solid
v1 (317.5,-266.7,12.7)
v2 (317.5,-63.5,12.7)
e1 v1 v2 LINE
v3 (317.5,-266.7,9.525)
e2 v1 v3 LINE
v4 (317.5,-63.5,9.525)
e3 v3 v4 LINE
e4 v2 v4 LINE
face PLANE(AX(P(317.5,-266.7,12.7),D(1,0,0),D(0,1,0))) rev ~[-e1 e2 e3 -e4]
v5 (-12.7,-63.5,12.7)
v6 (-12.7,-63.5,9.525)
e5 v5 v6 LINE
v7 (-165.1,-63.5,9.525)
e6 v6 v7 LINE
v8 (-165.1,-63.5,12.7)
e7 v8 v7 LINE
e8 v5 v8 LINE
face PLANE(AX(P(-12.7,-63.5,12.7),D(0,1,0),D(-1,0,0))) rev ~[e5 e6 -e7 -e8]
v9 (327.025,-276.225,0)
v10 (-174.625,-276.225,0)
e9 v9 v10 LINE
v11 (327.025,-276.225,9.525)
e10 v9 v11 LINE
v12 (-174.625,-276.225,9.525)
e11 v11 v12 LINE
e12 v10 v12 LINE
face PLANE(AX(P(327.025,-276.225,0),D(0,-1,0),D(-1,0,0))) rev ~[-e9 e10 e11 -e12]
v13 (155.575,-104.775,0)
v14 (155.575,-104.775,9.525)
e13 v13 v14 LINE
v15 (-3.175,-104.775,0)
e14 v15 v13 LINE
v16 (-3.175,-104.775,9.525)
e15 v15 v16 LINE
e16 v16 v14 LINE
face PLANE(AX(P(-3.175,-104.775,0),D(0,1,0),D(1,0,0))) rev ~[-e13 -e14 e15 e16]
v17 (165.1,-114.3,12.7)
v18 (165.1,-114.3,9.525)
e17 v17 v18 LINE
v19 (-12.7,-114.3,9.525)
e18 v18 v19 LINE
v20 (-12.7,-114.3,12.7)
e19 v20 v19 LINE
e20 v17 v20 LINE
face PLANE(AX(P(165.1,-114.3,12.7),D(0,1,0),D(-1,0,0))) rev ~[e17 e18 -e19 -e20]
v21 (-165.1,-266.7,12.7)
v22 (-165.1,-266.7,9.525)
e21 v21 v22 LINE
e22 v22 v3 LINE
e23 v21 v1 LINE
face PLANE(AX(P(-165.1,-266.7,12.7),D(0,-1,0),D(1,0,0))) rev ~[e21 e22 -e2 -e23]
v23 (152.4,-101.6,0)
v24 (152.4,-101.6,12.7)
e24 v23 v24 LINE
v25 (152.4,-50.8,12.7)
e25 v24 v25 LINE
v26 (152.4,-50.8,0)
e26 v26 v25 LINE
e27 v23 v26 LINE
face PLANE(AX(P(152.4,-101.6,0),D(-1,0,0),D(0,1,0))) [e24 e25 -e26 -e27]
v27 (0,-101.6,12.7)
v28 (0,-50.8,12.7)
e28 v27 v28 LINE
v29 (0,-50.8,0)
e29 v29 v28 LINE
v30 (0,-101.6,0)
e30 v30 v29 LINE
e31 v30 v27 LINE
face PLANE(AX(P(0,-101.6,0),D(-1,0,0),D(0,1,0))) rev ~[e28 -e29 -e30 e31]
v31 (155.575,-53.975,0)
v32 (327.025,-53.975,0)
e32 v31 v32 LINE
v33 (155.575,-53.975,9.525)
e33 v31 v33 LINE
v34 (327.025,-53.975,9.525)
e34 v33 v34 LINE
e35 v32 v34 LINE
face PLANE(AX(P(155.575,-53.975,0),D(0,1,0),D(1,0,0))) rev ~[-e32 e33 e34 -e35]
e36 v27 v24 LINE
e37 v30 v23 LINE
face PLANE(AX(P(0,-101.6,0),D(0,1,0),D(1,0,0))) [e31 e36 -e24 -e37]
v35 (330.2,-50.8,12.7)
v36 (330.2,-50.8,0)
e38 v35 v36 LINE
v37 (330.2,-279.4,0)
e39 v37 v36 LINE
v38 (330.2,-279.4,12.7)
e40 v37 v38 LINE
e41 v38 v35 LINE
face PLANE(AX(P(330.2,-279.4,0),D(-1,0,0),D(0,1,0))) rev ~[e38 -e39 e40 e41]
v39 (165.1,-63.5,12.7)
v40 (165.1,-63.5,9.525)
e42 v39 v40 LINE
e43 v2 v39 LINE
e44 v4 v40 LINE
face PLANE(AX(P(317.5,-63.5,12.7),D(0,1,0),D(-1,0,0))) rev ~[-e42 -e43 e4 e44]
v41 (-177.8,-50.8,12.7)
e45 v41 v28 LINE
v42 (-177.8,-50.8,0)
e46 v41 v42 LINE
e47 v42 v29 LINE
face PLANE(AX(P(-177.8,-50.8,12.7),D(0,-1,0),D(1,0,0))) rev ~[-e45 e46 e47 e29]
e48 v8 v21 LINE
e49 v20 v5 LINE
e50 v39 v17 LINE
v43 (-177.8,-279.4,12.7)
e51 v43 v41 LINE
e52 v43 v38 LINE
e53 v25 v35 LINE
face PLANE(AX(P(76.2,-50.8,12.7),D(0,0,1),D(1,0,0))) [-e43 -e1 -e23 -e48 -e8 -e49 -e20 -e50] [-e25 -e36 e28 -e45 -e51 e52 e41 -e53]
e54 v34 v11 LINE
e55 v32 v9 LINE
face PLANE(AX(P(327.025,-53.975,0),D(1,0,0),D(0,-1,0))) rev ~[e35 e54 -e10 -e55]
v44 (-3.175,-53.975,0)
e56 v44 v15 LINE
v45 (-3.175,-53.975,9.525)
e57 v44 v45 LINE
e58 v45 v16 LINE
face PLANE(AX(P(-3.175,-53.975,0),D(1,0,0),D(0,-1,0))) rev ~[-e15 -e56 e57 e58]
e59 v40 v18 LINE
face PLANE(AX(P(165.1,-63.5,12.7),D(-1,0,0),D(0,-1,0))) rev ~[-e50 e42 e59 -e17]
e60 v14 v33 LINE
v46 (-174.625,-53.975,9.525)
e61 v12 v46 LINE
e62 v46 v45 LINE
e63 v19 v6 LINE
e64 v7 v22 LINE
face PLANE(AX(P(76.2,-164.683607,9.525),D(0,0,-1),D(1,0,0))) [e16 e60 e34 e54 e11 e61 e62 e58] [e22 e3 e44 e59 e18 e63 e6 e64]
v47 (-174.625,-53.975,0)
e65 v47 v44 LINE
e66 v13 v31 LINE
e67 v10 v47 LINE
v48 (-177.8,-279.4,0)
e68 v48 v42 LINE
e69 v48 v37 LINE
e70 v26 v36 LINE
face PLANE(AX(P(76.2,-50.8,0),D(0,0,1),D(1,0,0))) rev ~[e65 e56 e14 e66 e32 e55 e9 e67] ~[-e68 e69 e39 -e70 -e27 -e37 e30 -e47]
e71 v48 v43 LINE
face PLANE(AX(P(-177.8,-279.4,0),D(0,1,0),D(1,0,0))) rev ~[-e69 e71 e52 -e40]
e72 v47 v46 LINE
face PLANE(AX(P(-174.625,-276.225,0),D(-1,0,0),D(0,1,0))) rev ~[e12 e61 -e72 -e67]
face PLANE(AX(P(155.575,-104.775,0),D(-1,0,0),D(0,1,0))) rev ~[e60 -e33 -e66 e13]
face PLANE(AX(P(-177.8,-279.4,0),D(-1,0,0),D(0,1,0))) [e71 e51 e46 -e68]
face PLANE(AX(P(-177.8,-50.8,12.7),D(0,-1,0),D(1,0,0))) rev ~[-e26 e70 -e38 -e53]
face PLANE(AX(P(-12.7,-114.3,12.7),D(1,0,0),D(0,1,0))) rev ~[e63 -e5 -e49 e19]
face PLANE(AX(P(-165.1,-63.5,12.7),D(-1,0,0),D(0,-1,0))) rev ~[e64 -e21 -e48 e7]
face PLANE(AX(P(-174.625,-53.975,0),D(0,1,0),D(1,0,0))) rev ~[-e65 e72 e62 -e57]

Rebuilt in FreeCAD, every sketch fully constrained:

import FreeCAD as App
import Part
import Sketcher
from FreeCAD import Vector
Q = App.Units.Quantity


def add_polygon(sketch, points):
    """Adds a closed chain of lines whose ends are joined by coincident constraints."""
    first, n = sketch.GeometryCount, len(points)
    for a, b in zip(points, points[1:] + points[:1]):
        sketch.addGeometry(Part.LineSegment(App.Vector(*a, 0), App.Vector(*b, 0)), False)
    for i in range(n):
        sketch.addConstraint(Sketcher.Constraint("Coincident", first + i, 2, first + (i + 1) % n, 1))

doc = App.newDocument("Part")
body = doc.addObject("PartDesign::Body", "Body")

# Sketch on XY plane
sketch1 = body.newObject("Sketcher::SketchObject", "Sketch")
sketch1.AttachmentSupport = (doc.getObject("XY_Plane"), [""])
sketch1.MapMode = "FlatFace"
add_polygon(sketch1, [(-177.8, 177.8), (-177.8, -279.4), (330.2, -279.4), (330.2, 177.8)])  # lines 0-3
add_polygon(sketch1, [(152.4, -101.6), (0, -101.6), (0, 0), (152.4, 0)])  # lines 4-7
sketch1.addConstraint(Sketcher.Constraint("Vertical", 0))
sketch1.addConstraint(Sketcher.Constraint("Horizontal", 1))
sketch1.addConstraint(Sketcher.Constraint("Vertical", 2))
sketch1.addConstraint(Sketcher.Constraint("Horizontal", 3))
sketch1.addConstraint(Sketcher.Constraint("Horizontal", 4))
sketch1.addConstraint(Sketcher.Constraint("Vertical", 5))
sketch1.addConstraint(Sketcher.Constraint("Horizontal", 6))
sketch1.addConstraint(Sketcher.Constraint("Vertical", 7))
sketch1.addConstraint(Sketcher.Constraint("Coincident", 5, 2, -1, 1))
sketch1.addConstraint(Sketcher.Constraint("DistanceX", 1, 1, 1, 2, Q("20 in")))
sketch1.addConstraint(Sketcher.Constraint("DistanceX", 4, 2, 4, 1, Q("6 in")))
sketch1.addConstraint(Sketcher.Constraint("DistanceY", 0, 2, 0, 1, Q("18 in")))
sketch1.addConstraint(Sketcher.Constraint("DistanceY", 5, 1, 5, 2, Q("4 in")))
sketch1.addConstraint(Sketcher.Constraint("DistanceX", 0, 2, -1, 1, Q("7 in")))
sketch1.addConstraint(Sketcher.Constraint("DistanceY", 0, 2, -1, 1, Q("11 in")))
pad1 = body.newObject("PartDesign::Pad", "Pad")
pad1.Profile = sketch1
pad1.Length = Q("0.5 in")

# Sketch on XY plane
sketch2 = body.newObject("Sketcher::SketchObject", "Sketch001")
sketch2.AttachmentSupport = (doc.getObject("XY_Plane"), [""])
sketch2.MapMode = "FlatFace"
sketch2.AttachmentOffset = App.Placement(Vector(0, 0, 0.5 * 25.4), App.Rotation())
add_polygon(sketch2, [(-177.8, 177.8), (-177.8, -50.8), (330.2, -50.8), (330.2, 177.8)])  # lines 0-3
sketch2.addConstraint(Sketcher.Constraint("Vertical", 0))
sketch2.addConstraint(Sketcher.Constraint("Horizontal", 1))
sketch2.addConstraint(Sketcher.Constraint("Vertical", 2))
sketch2.addConstraint(Sketcher.Constraint("Horizontal", 3))
sketch2.addConstraint(Sketcher.Constraint("DistanceX", 1, 1, 1, 2, Q("20 in")))
sketch2.addConstraint(Sketcher.Constraint("DistanceY", 0, 2, 0, 1, Q("9 in")))
sketch2.addConstraint(Sketcher.Constraint("DistanceX", 0, 2, -1, 1, Q("7 in")))
sketch2.addConstraint(Sketcher.Constraint("DistanceY", 0, 2, -1, 1, Q("2 in")))
pocket1 = body.newObject("PartDesign::Pocket", "Pocket")
pocket1.Profile = sketch2
pocket1.Type = "ThroughAll"

# Sketch on XY plane
sketch3 = body.newObject("Sketcher::SketchObject", "Sketch002")
sketch3.AttachmentSupport = (doc.getObject("XY_Plane"), [""])
sketch3.MapMode = "FlatFace"
sketch3.AttachmentOffset = App.Placement(Vector(0, 0, 0.5 * 25.4), App.Rotation())
add_polygon(sketch3, [(-12.7, -63.5), (-165.1, -63.5), (-165.1, -266.7), (317.5, -266.7), (317.5, -63.5), (165.1, -63.5), (165.1, -114.3), (-12.7, -114.3)])  # lines 0-7
sketch3.addConstraint(Sketcher.Constraint("Horizontal", 0))
sketch3.addConstraint(Sketcher.Constraint("Vertical", 1))
sketch3.addConstraint(Sketcher.Constraint("Horizontal", 2))
sketch3.addConstraint(Sketcher.Constraint("Vertical", 3))
sketch3.addConstraint(Sketcher.Constraint("Horizontal", 4))
sketch3.addConstraint(Sketcher.Constraint("Vertical", 5))
sketch3.addConstraint(Sketcher.Constraint("Horizontal", 6))
sketch3.addConstraint(Sketcher.Constraint("Vertical", 7))
sketch3.addConstraint(Sketcher.Constraint("Symmetric", 0, 2, 4, 2, -2))
sketch3.addConstraint(Sketcher.Constraint("Equal", 0, 4))
sketch3.addConstraint(Sketcher.Constraint("DistanceX", 0, 2, 0, 1, Q("6 in")))
sketch3.addConstraint(Sketcher.Constraint("DistanceX", 2, 1, 2, 2, Q("19 in")))
sketch3.addConstraint(Sketcher.Constraint("DistanceY", 1, 2, 1, 1, Q("8 in")))
sketch3.addConstraint(Sketcher.Constraint("DistanceY", 5, 2, 5, 1, Q("2 in")))
sketch3.addConstraint(Sketcher.Constraint("DistanceY", 0, 2, -1, 1, Q("2.5 in")))
pocket2 = body.newObject("PartDesign::Pocket", "Pocket001")
pocket2.Profile = sketch3
pocket2.Type = "ThroughAll"

# Sketch on XY plane
sketch4 = body.newObject("Sketcher::SketchObject", "Sketch003")
sketch4.AttachmentSupport = (doc.getObject("XY_Plane"), [""])
sketch4.MapMode = "FlatFace"
add_polygon(sketch4, [(-174.625, -276.225), (-174.625, -53.975), (-3.175, -53.975), (-3.175, -104.775), (155.575, -104.775), (155.575, -53.975), (327.025, -53.975), (327.025, -276.225)])  # lines 0-7
sketch4.addConstraint(Sketcher.Constraint("Vertical", 0))
sketch4.addConstraint(Sketcher.Constraint("Horizontal", 1))
sketch4.addConstraint(Sketcher.Constraint("Vertical", 2))
sketch4.addConstraint(Sketcher.Constraint("Horizontal", 3))
sketch4.addConstraint(Sketcher.Constraint("Vertical", 4))
sketch4.addConstraint(Sketcher.Constraint("Horizontal", 5))
sketch4.addConstraint(Sketcher.Constraint("Vertical", 6))
sketch4.addConstraint(Sketcher.Constraint("Horizontal", 7))
sketch4.addConstraint(Sketcher.Constraint("Horizontal", 1, 2, 4, 2))
sketch4.addConstraint(Sketcher.Constraint("Equal", 1, 5))
sketch4.addConstraint(Sketcher.Constraint("DistanceY", 2, 2, 2, 1, Q("2 in")))
sketch4.addConstraint(Sketcher.Constraint("DistanceX", 0, 2, 3, 2, Q("13 in")))
sketch4.addConstraint(Sketcher.Constraint("DistanceX", 1, 1, 1, 2, Q("6.75 in")))
sketch4.addConstraint(Sketcher.Constraint("DistanceY", 0, 1, 0, 2, Q("8.75 in")))
sketch4.addConstraint(Sketcher.Constraint("DistanceX", 0, 2, -1, 1, Q("6.875 in")))
sketch4.addConstraint(Sketcher.Constraint("DistanceY", 0, 2, -1, 1, Q("2.125 in")))
pocket3 = body.newObject("PartDesign::Pocket", "Pocket002")
pocket3.Profile = sketch4
pocket3.Length = Q("0.375 in")
pocket3.Reversed = True

doc.recompute()
